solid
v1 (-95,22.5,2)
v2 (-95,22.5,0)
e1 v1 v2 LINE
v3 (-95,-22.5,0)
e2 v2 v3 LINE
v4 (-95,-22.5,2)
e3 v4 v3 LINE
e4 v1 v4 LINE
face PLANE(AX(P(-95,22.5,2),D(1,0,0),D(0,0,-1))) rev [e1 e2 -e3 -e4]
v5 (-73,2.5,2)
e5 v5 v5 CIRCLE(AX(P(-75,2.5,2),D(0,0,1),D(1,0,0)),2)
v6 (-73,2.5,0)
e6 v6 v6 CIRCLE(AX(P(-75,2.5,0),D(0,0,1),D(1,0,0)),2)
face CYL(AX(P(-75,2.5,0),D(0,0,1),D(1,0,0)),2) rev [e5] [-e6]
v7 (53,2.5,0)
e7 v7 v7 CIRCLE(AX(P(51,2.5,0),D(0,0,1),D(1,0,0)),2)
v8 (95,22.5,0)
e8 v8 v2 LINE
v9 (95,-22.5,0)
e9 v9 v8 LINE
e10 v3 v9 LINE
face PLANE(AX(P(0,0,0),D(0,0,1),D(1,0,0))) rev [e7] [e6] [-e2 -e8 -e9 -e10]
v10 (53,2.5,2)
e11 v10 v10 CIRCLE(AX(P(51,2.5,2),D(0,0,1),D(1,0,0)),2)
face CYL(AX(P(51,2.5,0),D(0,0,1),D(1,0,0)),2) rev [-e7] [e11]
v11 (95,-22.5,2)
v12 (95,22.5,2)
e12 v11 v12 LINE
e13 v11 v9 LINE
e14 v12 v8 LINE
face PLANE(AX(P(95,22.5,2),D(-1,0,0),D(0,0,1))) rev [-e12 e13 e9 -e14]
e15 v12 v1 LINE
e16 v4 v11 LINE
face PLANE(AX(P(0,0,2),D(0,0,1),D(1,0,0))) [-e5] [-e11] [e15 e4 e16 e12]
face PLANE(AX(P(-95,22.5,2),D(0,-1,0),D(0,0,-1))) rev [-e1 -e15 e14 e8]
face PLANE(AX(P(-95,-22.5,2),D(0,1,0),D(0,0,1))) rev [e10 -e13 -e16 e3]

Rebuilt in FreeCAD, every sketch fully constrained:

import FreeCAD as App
import Part
import Sketcher


def add_polygon(sketch, points):
    """Adds a closed chain of lines whose ends are joined by coincident constraints."""
    first, n = sketch.GeometryCount, len(points)
    for a, b in zip(points, points[1:] + points[:1]):
        sketch.addGeometry(Part.LineSegment(App.Vector(*a, 0), App.Vector(*b, 0)), False)
    for i in range(n):
        sketch.addConstraint(Sketcher.Constraint("Coincident", first + i, 2, first + (i + 1) % n, 1))

doc = App.newDocument("Part")
body = doc.addObject("PartDesign::Body", "Body")

sketch1 = doc.addObject("Sketcher::SketchObject", "Sketch")
body.addObject(sketch1)
sketch1.AttachmentSupport = (doc.XY_Plane, [""])
sketch1.MapMode = "FlatFace"
add_polygon(sketch1, [(-95, 22), (-95, -22), (95, -22), (95, 22)])
sketch1.addConstraint([
    Sketcher.Constraint("Vertical", 0),
    Sketcher.Constraint("Horizontal", 1),
    Sketcher.Constraint("Vertical", 2),
    Sketcher.Constraint("Horizontal", 3),
    Sketcher.Constraint("Symmetric", 0, 2, 2, 2, -1, 1),
    Sketcher.Constraint("DistanceX", 1, 1, 1, 2, 190.0),
    Sketcher.Constraint("DistanceY", 0, 2, 0, 1, 45.0),
])
pad1 = doc.addObject("PartDesign::Pad", "Pad")
body.addObject(pad1)
pad1.Profile = sketch1
pad1.Length = 2

sketch2 = doc.addObject("Sketcher::SketchObject", "Sketch001")
body.addObject(sketch2)
sketch2.AttachmentSupport = (doc.XY_Plane, [""])
sketch2.MapMode = "FlatFace"
sketch2.AttachmentOffset = App.Placement(App.Vector(0, 0, 2), App.Rotation())
sketch2.addGeometry([
    Part.Circle(App.Vector(-75, 2.5, 0), App.Vector(0, 0, 1), 2),
    Part.Circle(App.Vector(51, 2.5, 0), App.Vector(0, 0, 1), 2),
], False)
sketch2.addConstraint([
    Sketcher.Constraint("Equal", 0, 1),
    Sketcher.Constraint("Horizontal", 0, 3, 1, 3),
    Sketcher.Constraint("Diameter", 0, 4.0),
    Sketcher.Constraint("DistanceX", 0, 3, -1, 1, 75.0),
    Sketcher.Constraint("DistanceX", -1, 1, 1, 3, 51.0),
    Sketcher.Constraint("DistanceY", -1, 1, 0, 3, 2.5),
])
pocket1 = doc.addObject("PartDesign::Pocket", "Pocket")
body.addObject(pocket1)
pocket1.Profile = sketch2
pocket1.Length = 2

doc.recompute()
